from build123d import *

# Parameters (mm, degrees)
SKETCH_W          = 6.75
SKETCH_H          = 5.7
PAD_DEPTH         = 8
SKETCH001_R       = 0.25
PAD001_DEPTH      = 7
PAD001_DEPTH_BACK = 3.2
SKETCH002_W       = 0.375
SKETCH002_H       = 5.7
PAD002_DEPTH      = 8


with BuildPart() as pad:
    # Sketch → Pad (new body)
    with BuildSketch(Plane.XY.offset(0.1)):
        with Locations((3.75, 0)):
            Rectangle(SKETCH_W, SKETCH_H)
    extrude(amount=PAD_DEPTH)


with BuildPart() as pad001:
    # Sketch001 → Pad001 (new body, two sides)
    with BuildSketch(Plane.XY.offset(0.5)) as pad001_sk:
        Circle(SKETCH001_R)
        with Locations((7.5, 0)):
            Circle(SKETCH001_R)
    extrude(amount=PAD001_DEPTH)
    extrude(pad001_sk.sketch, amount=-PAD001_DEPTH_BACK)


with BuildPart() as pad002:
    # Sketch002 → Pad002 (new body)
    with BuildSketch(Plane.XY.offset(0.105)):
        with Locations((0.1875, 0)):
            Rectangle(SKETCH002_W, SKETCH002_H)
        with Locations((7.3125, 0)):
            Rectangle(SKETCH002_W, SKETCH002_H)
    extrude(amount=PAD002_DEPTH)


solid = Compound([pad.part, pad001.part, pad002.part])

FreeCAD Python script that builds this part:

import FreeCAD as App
import Part
import Sketcher


def add_polygon(sketch, points):
    """Adds a closed chain of lines whose ends are joined by coincident constraints."""
    first, n = sketch.GeometryCount, len(points)
    for a, b in zip(points, points[1:] + points[:1]):
        sketch.addGeometry(Part.LineSegment(App.Vector(*a, 0), App.Vector(*b, 0)), False)
    for i in range(n):
        sketch.addConstraint(Sketcher.Constraint("Coincident", first + i, 2, first + (i + 1) % n, 1))

doc = App.newDocument("Part")
body = doc.addObject("PartDesign::Body", "Body")

# Sketch on XY plane
sketch1 = doc.addObject("Sketcher::SketchObject", "Sketch")
body.addObject(sketch1)
sketch1.AttachmentSupport = (doc.XY_Plane, [""])
sketch1.MapMode = "FlatFace"
sketch1.AttachmentOffset = App.Placement(App.Vector(0, 0, 0.1), App.Rotation())
add_polygon(sketch1, [(0, 3), (0, -3), (7, -3), (7, 3)])  # lines 0-3
sketch1.addConstraint([
    Sketcher.Constraint("Vertical", 0),
    Sketcher.Constraint("Horizontal", 1),
    Sketcher.Constraint("Vertical", 2),
    Sketcher.Constraint("Horizontal", 3),
    Sketcher.Constraint("DistanceY", 0, 2, 0, 1, 5.7),
    Sketcher.Constraint("DistanceX", 1, 1, 1, 2, 6.75),
    Sketcher.Constraint("DistanceY", 0, 2, -1, 1, 2.85),
    Sketcher.Constraint("DistanceX", -1, 1, 0, 2, 0.375),
])
pad1 = doc.addObject("PartDesign::Pad", "Pad")
body.addObject(pad1)
pad1.Profile = sketch1
pad1.Length = 8
body2 = doc.addObject("PartDesign::Body", "Body001")
body2.AllowCompound = True

# Sketch on XY plane
sketch2 = doc.addObject("Sketcher::SketchObject", "Sketch001")
body2.addObject(sketch2)
sketch2.AttachmentSupport = (doc.getObject("XY_Plane001"), [""])
sketch2.MapMode = "FlatFace"
sketch2.AttachmentOffset = App.Placement(App.Vector(0, 0, 0.5), App.Rotation())
sketch2.addGeometry([
    Part.Circle(App.Vector(0, 0, 0), App.Vector(0, 0, 1), 0.25),
    Part.Circle(App.Vector(7.5, 0, 0), App.Vector(0, 0, 1), 0.25),
], False)
sketch2.addConstraint([
    Sketcher.Constraint("Coincident", 0, 3, -1, 1),
    Sketcher.Constraint("Equal", 0, 1),
    Sketcher.Constraint("PointOnObject", 1, 3, -1),
    Sketcher.Constraint("Diameter", 0, 0.5),
    Sketcher.Constraint("DistanceX", -1, 1, 1, 3, 7.5),
])
pad2 = doc.addObject("PartDesign::Pad", "Pad001")
body2.addObject(pad2)
pad2.Profile = sketch2
pad2.Type = "TwoLengths"
pad2.Length = 7
pad2.Length2 = 3.2
body3 = doc.addObject("PartDesign::Body", "Body002")
body3.AllowCompound = True

# Sketch on XY plane
sketch3 = doc.addObject("Sketcher::SketchObject", "Sketch002")
body3.addObject(sketch3)
sketch3.AttachmentSupport = (doc.getObject("XY_Plane002"), [""])
sketch3.MapMode = "FlatFace"
sketch3.AttachmentOffset = App.Placement(App.Vector(0, 0, 0.105), App.Rotation())
add_polygon(sketch3, [(0, 2.85), (0, -2.85), (0.38, -2.85), (0.38, 2.85)])  # lines 0-3
add_polygon(sketch3, [(7.12, 2.85), (7.12, -2.85), (7.5, -2.85), (7.5, 2.85)])  # lines 4-7
sketch3.addConstraint([
    Sketcher.Constraint("Vertical", 0),
    Sketcher.Constraint("Horizontal", 1),
    Sketcher.Constraint("Vertical", 2),
    Sketcher.Constraint("Horizontal", 3),
    Sketcher.Constraint("Vertical", 4),
    Sketcher.Constraint("Horizontal", 5),
    Sketcher.Constraint("Vertical", 6),
    Sketcher.Constraint("Horizontal", 7),
    Sketcher.Constraint("Symmetric", 0, 2, 3, 2, -1, 1),
    Sketcher.Constraint("Horizontal", 1, 2, 4, 2),
    Sketcher.Constraint("Horizontal", 3, 2, 6, 2),
    Sketcher.Constraint("Equal", 3, 5),
    Sketcher.Constraint("DistanceY", 0, 2, 0, 1, 5.7),
    Sketcher.Constraint("DistanceX", -1, 1, 5, 2, 7.5),
    Sketcher.Constraint("DistanceX", 1, 1, 1, 2, 0.375),
])
pad3 = doc.addObject("PartDesign::Pad", "Pad002")
body3.addObject(pad3)
pad3.Profile = sketch3
pad3.Length = 8

doc.recompute()
